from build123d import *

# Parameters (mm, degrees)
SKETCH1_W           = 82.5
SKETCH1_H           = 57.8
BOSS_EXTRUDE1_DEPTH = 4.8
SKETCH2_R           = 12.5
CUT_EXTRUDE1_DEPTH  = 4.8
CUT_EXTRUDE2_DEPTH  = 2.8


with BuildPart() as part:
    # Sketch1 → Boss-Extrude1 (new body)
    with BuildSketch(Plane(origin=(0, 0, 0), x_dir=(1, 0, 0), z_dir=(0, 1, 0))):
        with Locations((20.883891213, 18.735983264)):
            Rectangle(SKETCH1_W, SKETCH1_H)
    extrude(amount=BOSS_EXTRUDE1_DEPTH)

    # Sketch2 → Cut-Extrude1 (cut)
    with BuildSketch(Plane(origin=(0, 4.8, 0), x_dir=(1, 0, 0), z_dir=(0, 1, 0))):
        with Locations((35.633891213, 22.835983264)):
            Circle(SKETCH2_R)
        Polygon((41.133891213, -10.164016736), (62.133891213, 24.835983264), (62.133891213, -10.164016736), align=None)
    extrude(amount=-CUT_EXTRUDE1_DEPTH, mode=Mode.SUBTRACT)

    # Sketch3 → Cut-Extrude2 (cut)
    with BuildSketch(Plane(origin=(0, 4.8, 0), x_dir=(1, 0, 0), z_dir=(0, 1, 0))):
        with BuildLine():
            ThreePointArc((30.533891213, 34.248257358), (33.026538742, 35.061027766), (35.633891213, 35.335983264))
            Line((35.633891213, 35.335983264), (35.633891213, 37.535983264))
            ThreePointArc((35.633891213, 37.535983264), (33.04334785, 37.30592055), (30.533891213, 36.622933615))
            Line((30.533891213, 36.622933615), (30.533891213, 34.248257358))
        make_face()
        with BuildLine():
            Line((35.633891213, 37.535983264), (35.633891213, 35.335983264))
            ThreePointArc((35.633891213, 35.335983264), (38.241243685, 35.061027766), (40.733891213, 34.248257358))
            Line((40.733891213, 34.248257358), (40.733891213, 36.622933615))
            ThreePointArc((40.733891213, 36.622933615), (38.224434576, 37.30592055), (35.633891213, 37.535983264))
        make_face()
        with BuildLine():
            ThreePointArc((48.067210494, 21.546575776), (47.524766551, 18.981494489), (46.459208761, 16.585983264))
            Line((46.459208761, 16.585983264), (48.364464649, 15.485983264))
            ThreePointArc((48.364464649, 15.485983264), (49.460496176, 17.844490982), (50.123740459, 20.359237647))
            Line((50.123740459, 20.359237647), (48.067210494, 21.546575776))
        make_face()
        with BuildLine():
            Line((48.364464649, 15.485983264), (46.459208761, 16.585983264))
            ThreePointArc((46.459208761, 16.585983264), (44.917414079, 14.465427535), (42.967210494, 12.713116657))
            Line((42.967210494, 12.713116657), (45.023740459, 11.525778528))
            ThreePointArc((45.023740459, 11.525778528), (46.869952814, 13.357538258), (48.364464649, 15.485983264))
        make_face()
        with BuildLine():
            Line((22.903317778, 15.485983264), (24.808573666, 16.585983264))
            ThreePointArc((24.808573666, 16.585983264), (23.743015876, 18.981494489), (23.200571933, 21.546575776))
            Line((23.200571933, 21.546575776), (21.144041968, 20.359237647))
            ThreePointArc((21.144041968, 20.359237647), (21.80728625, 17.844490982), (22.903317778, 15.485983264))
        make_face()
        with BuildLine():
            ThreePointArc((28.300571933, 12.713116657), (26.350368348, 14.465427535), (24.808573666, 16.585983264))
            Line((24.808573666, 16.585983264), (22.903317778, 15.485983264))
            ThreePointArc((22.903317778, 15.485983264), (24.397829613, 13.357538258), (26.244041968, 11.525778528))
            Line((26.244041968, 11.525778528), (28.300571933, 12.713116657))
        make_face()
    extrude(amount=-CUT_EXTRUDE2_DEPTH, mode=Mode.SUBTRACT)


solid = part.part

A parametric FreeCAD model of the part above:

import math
import FreeCAD as App
import Part
import Sketcher

V = App.Vector
Q = App.Units.Quantity


def add_polygon(sketch, points):
    """Adds a closed chain of lines whose ends are joined by coincident constraints."""
    first, n = sketch.GeometryCount, len(points)
    for a, b in zip(points, points[1:] + points[:1]):
        sketch.addGeometry(Part.LineSegment(App.Vector(*a, 0), App.Vector(*b, 0)), False)
    for i in range(n):
        sketch.addConstraint(Sketcher.Constraint("Coincident", first + i, 2, first + (i + 1) % n, 1))

doc = App.newDocument("Part")
params = doc.addObject("Spreadsheet::Sheet", "Params")
for row, (alias, value) in enumerate([
    ("sketch1_width", "82.5 mm"),
    ("sketch1_height", "57.8 mm"),
    ("pad1_length", "4.8 mm"),
    ("sketch2_diameter", "25 mm"),
    ("sketch2_width", "21 mm"),
    ("sketch2_height", "35 mm"),
    ("pocket1_length", "4.8 mm"),
    ("sketch3_radius", "12.5 mm"),
    ("sketch3_radius2", "14.7 mm"),
    ("pocket2_length", "2.8 mm"),
], start=1):
    params.set(f"A{row}", alias)
    params.set(f"B{row}", "=" + value)
    params.setAlias(f"B{row}", alias)

body = doc.addObject("PartDesign::Body", "Body")

# Sketch on XZ plane
sketch1 = doc.addObject("Sketcher::SketchObject", "Sketch")
body.addObject(sketch1)
sketch1.AttachmentSupport = (doc.XZ_Plane, [""])
sketch1.MapMode = "FlatFace"
add_polygon(sketch1, [(-20, -48), (-20, 10), (62, 10), (62, -48)])  # lines 0-3
sketch1.addConstraint([
    Sketcher.Constraint("Vertical", 0),
    Sketcher.Constraint("Horizontal", 1),
    Sketcher.Constraint("Vertical", 2),
    Sketcher.Constraint("Horizontal", 3),
    Sketcher.Constraint("DistanceX", 1, 1, 1, 2, 82.5),
    Sketcher.Constraint("DistanceY", 0, 1, 0, 2, 57.8),
    Sketcher.Constraint("DistanceX", 0, 2, -1, 1, 20.366109),
    Sketcher.Constraint("DistanceY", -1, 1, 0, 2, 10.164017),
])
sketch1.setExpression("Constraints[8]", "Params.sketch1_width")
sketch1.setExpression("Constraints[9]", "Params.sketch1_height")
pad1 = doc.addObject("PartDesign::Pad", "Pad")
body.addObject(pad1)
pad1.Profile = sketch1
pad1.setExpression("Length", "Params.pad1_length")
pad1.Reversed = True

# Sketch on XZ plane
sketch2 = doc.addObject("Sketcher::SketchObject", "Sketch001")
body.addObject(sketch2)
sketch2.AttachmentSupport = (doc.XZ_Plane, [""])
sketch2.MapMode = "FlatFace"
sketch2.AttachmentOffset = App.Placement(V(0, 0, -4.8), App.Rotation())
sketch2.addGeometry(Part.Circle(V(36, -23, 0), V(0, 0, 1), 12), False)  # 0
add_polygon(sketch2, [(62, -25), (41, 10), (62, 10)])  # lines 1-3
sketch2.addConstraint([
    Sketcher.Constraint("Horizontal", 2),
    Sketcher.Constraint("Vertical", 3),
    Sketcher.Constraint("Diameter", 0, 25.0),
    Sketcher.Constraint("DistanceX", 2, 1, 2, 2, 21.0),
    Sketcher.Constraint("DistanceY", 3, 2, 3, 1, 35.0),
    Sketcher.Constraint("DistanceY", 0, 3, 1, 2, 33.0),
    Sketcher.Constraint("DistanceX", 0, 3, 1, 2, 5.5),
    Sketcher.Constraint("DistanceX", -1, 1, 0, 3, 35.633891),
    Sketcher.Constraint("DistanceY", 0, 3, -1, 1, 22.835983),
])
sketch2.setExpression("Constraints[5]", "Params.sketch2_diameter")
sketch2.setExpression("Constraints[6]", "Params.sketch2_width")
sketch2.setExpression("Constraints[7]", "Params.sketch2_height")
pocket1 = doc.addObject("PartDesign::Pocket", "Pocket")
body.addObject(pocket1)
pocket1.Profile = sketch2
pocket1.setExpression("Length", "Params.pocket1_length")
pocket1.Reversed = True

# Sketch on XZ plane
sketch3 = doc.addObject("Sketcher::SketchObject", "Sketch002")
body.addObject(sketch3)
sketch3.AttachmentSupport = (doc.XZ_Plane, [""])
sketch3.MapMode = "FlatFace"
sketch3.AttachmentOffset = App.Placement(V(0, 0, -4.8), App.Rotation())
sketch3.addGeometry([
    Part.ArcOfCircle(Part.Circle(V(35.6, -22.8, 0), V(0, 0, 1), 12.5), math.radians(-114), math.radians(-90)),  # 0
    Part.ArcOfCircle(Part.Circle(V(35.6, -22.8, 0), V(0, 0, 1), 12.5), math.radians(-90), math.radians(-66)),  # 1
    Part.LineSegment(V(40.7, -34.2, 0), V(40.7, -36.6, 0)),  # 2
    Part.ArcOfCircle(Part.Circle(V(35.6, -22.8, 0), V(0, 0, 1), 14.7), math.radians(-90), math.radians(-70)),  # 3
    Part.ArcOfCircle(Part.Circle(V(35.6, -22.8, 0), V(0, 0, 1), 14.7), math.radians(-110), math.radians(-90)),  # 4
    Part.LineSegment(V(30.5, -36.6, 0), V(30.5, -34.2, 0)),  # 5
    Part.ArcOfCircle(Part.Circle(V(35.6, -22.8, 0), V(0, 0, 1), 12.5), math.radians(6), math.radians(30)),  # 6
    Part.ArcOfCircle(Part.Circle(V(35.6, -22.8, 0), V(0, 0, 1), 12.5), math.radians(30), math.radians(54)),  # 7
    Part.LineSegment(V(43, -12.7, 0), V(45, -11.5, 0)),  # 8
    Part.ArcOfCircle(Part.Circle(V(35.6, -22.8, 0), V(0, 0, 1), 14.7), math.radians(30), math.radians(50)),  # 9
    Part.ArcOfCircle(Part.Circle(V(35.6, -22.8, 0), V(0, 0, 1), 14.7), math.radians(10), math.radians(30)),  # 10
    Part.LineSegment(V(50.1, -20.4, 0), V(48.1, -21.5, 0)),  # 11
    Part.ArcOfCircle(Part.Circle(V(35.6, -22.8, 0), V(0, 0, 1), 12.5), math.radians(150), math.radians(174)),  # 12
    Part.LineSegment(V(23.2, -21.5, 0), V(21.1, -20.4, 0)),  # 13
    Part.ArcOfCircle(Part.Circle(V(35.6, -22.8, 0), V(0, 0, 1), 14.7), math.radians(150), math.radians(170)),  # 14
    Part.ArcOfCircle(Part.Circle(V(35.6, -22.8, 0), V(0, 0, 1), 14.7), math.radians(130), math.radians(150)),  # 15
    Part.LineSegment(V(26.2, -11.5, 0), V(28.3, -12.7, 0)),  # 16
    Part.ArcOfCircle(Part.Circle(V(35.6, -22.8, 0), V(0, 0, 1), 12.5), math.radians(126), math.radians(150)),  # 17
], False)
sketch3.addConstraint([
    Sketcher.Constraint("Tangent", 0, 2, 1, 1),
    Sketcher.Constraint("Coincident", 1, 2, 2, 1),
    Sketcher.Constraint("Coincident", 2, 2, 3, 2),
    Sketcher.Constraint("Tangent", 3, 1, 4, 2),
    Sketcher.Constraint("Coincident", 4, 1, 5, 1),
    Sketcher.Constraint("Coincident", 5, 2, 0, 1),
    Sketcher.Constraint("Tangent", 6, 2, 7, 1),
    Sketcher.Constraint("Coincident", 7, 2, 8, 1),
    Sketcher.Constraint("Coincident", 8, 2, 9, 2),
    Sketcher.Constraint("Tangent", 9, 1, 10, 2),
    Sketcher.Constraint("Coincident", 10, 1, 11, 1),
    Sketcher.Constraint("Coincident", 11, 2, 6, 1),
    Sketcher.Constraint("Coincident", 12, 2, 13, 1),
    Sketcher.Constraint("Coincident", 13, 2, 14, 2),
    Sketcher.Constraint("Tangent", 14, 1, 15, 2),
    Sketcher.Constraint("Coincident", 15, 1, 16, 1),
    Sketcher.Constraint("Coincident", 16, 2, 17, 1),
    Sketcher.Constraint("Tangent", 17, 2, 12, 1),
    Sketcher.Constraint("Vertical", 2),
    Sketcher.Constraint("Vertical", 5),
    Sketcher.Constraint("Coincident", 3, 3, 0, 3),
    Sketcher.Constraint("Coincident", 6, 3, 0, 3),
    Sketcher.Constraint("Coincident", 9, 3, 0, 3),
    Sketcher.Constraint("Coincident", 12, 3, 0, 3),
    Sketcher.Constraint("Coincident", 14, 3, 0, 3),
    Sketcher.Constraint("Equal", 0, 1),
    Sketcher.Constraint("Equal", 3, 4),
    Sketcher.Constraint("Equal", 1, 6),
    Sketcher.Constraint("Equal", 6, 7),
    Sketcher.Constraint("Equal", 4, 9),
    Sketcher.Constraint("Equal", 9, 10),
    Sketcher.Constraint("Equal", 7, 12),
    Sketcher.Constraint("Equal", 10, 14),
    Sketcher.Constraint("Equal", 14, 15),
    Sketcher.Constraint("Equal", 12, 17),
    Sketcher.Constraint("Parallel", 8, 11),
    Sketcher.Constraint("Parallel", 13, 16),
    Sketcher.Constraint("Horizontal", 2, 2, 4, 1),
    Sketcher.Constraint("Horizontal", 11, 2, 12, 2),
    Sketcher.Constraint("Horizontal", 10, 1, 13, 2),
    Sketcher.Constraint("Horizontal", 9, 1, 14, 1),
    Sketcher.Constraint("Horizontal", 8, 2, 15, 1),
    Sketcher.Constraint("Horizontal", 6, 2, 17, 2),
    Sketcher.Constraint("Vertical", 17, 3, 0, 2),
    Sketcher.Constraint("Vertical", 0, 2, 3, 1),
    Sketcher.Constraint("Equal", 8, 11),
    Sketcher.Constraint("Radius", 0, 12.5),
    Sketcher.Constraint("Radius", 3, 14.7),
    Sketcher.Constraint("Angle", 8, Q("30 deg")),
    Sketcher.Constraint("DistanceX", 0, 2, 1, 2, 5.1),
    Sketcher.Constraint("DistanceY", 6, 2, 9, 1, 1.1),
    Sketcher.Constraint("DistanceX", 8, 2, 10, 1, 5.1),
    Sketcher.Constraint("DistanceY", 9, 3, 6, 2, 6.25),
    Sketcher.Constraint("DistanceX", -1, 1, 0, 3, 35.633891),
    Sketcher.Constraint("DistanceY", 8, 2, -1, 1, 11.525779),
])
sketch3.setExpression("Constraints[46]", "Params.sketch3_radius")
sketch3.setExpression("Constraints[47]", "Params.sketch3_radius2")
pocket2 = doc.addObject("PartDesign::Pocket", "Pocket001")
body.addObject(pocket2)
pocket2.Profile = sketch3
pocket2.setExpression("Length", "Params.pocket2_length")
pocket2.Reversed = True

doc.recompute()
